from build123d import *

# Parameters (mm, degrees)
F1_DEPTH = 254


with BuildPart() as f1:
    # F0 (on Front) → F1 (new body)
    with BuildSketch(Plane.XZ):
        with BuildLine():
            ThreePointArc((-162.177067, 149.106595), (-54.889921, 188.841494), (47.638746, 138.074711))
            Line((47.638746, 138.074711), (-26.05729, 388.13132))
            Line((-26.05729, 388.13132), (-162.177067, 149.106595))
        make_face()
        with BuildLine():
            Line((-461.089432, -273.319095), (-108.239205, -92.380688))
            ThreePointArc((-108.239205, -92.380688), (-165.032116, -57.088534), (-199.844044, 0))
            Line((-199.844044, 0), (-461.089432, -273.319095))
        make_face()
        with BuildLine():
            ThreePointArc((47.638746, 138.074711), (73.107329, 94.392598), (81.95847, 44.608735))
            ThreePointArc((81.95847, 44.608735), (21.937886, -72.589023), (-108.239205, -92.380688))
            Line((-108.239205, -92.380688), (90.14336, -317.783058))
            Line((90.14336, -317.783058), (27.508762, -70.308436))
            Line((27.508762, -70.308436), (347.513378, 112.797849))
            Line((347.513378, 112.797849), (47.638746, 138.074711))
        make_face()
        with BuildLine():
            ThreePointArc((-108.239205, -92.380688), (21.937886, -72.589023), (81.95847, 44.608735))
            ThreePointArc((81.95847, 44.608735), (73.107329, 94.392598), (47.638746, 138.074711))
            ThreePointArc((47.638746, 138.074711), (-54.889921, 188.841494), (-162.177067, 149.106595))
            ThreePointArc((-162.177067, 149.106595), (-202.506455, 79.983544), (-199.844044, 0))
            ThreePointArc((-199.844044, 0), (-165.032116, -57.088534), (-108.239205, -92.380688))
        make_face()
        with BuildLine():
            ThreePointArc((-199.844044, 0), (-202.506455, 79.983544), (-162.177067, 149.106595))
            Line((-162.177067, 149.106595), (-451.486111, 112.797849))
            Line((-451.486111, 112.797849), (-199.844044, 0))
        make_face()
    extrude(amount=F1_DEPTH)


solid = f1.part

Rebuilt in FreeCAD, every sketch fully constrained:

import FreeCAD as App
import Part
import Sketcher
Q = App.Units.Quantity

doc = App.newDocument("Part")
body = doc.addObject("PartDesign::Body", "Body")

# Sketch on XZ plane
sketch1 = body.newObject("Sketcher::SketchObject", "Sketch")
sketch1.AttachmentSupport = (doc.getObject("XZ_Plane"), [""])
sketch1.MapMode = "FlatFace"
sketch1.addGeometry(Part.LineSegment(App.Vector(48, 138, 0), App.Vector(-26, 388, 0)), False)
sketch1.addGeometry(Part.LineSegment(App.Vector(-26, 388, 0), App.Vector(-162, 149, 0)), False)
sketch1.addGeometry(Part.LineSegment(App.Vector(-162, 149, 0), App.Vector(-451, 113, 0)), False)
sketch1.addGeometry(Part.LineSegment(App.Vector(-451, 113, 0), App.Vector(-200, 0, 0)), False)
sketch1.addGeometry(Part.LineSegment(App.Vector(-200, 0, 0), App.Vector(-461, -273, 0)), False)
sketch1.addGeometry(Part.LineSegment(App.Vector(-461, -273, 0), App.Vector(-108, -92, 0)), False)
sketch1.addGeometry(Part.LineSegment(App.Vector(-108, -92, 0), App.Vector(90, -318, 0)), False)
sketch1.addGeometry(Part.LineSegment(App.Vector(90, -318, 0), App.Vector(28, -70, 0)), False)
sketch1.addGeometry(Part.LineSegment(App.Vector(28, -70, 0), App.Vector(348, 113, 0)), False)
sketch1.addGeometry(Part.LineSegment(App.Vector(348, 113, 0), App.Vector(48, 138, 0)), False)
sketch1.addConstraint(Sketcher.Constraint("Coincident", 0, 2, 1, 1))
sketch1.addConstraint(Sketcher.Constraint("Coincident", 1, 2, 2, 1))
sketch1.addConstraint(Sketcher.Constraint("Coincident", 2, 2, 3, 1))
sketch1.addConstraint(Sketcher.Constraint("Coincident", 3, 2, 4, 1))
sketch1.addConstraint(Sketcher.Constraint("Coincident", 4, 2, 5, 1))
sketch1.addConstraint(Sketcher.Constraint("Coincident", 5, 2, 6, 1))
sketch1.addConstraint(Sketcher.Constraint("Coincident", 6, 2, 7, 1))
sketch1.addConstraint(Sketcher.Constraint("Coincident", 7, 2, 8, 1))
sketch1.addConstraint(Sketcher.Constraint("Coincident", 8, 2, 9, 1))
sketch1.addConstraint(Sketcher.Constraint("Coincident", 9, 2, 0, 1))
sketch1.addConstraint(Sketcher.Constraint("PointOnObject", 3, 2, -1))
sketch1.addConstraint(Sketcher.Constraint("Horizontal", 2, 2, 8, 2))
sketch1.addConstraint(Sketcher.Constraint("Distance", 5, Q("396.537501 mm")))
sketch1.addConstraint(Sketcher.Constraint("DistanceY", 5, 2, 9, 2, Q("230.455399 mm")))
sketch1.addConstraint(Sketcher.Constraint("Distance", 3, Q("275.766359 mm")))
sketch1.addConstraint(Sketcher.Constraint("Distance", 4, Q("378.090572 mm")))
sketch1.addConstraint(Sketcher.Constraint("Distance", 7, Q("255.277851 mm")))
sketch1.addConstraint(Sketcher.Constraint("DistanceX", 0, 2, -1, 1, Q("26.05729 mm")))
sketch1.addConstraint(Sketcher.Constraint("DistanceY", -1, 1, 0, 2, Q("388.13132 mm")))
sketch1.addConstraint(Sketcher.Constraint("DistanceX", 2, 2, -1, 1, Q("451.486111 mm")))
sketch1.addConstraint(Sketcher.Constraint("DistanceY", -1, 1, 2, 2, Q("112.797849 mm")))
sketch1.addConstraint(Sketcher.Constraint("DistanceX", 4, 2, -1, 1, Q("461.089432 mm")))
sketch1.addConstraint(Sketcher.Constraint("DistanceY", 5, 2, -1, 1, Q("92.380688 mm")))
sketch1.addConstraint(Sketcher.Constraint("DistanceX", -1, 1, 6, 2, Q("90.14336 mm")))
sketch1.addConstraint(Sketcher.Constraint("DistanceY", 6, 2, -1, 1, Q("317.783058 mm")))
sketch1.addConstraint(Sketcher.Constraint("DistanceX", -1, 1, 8, 2, Q("347.513378 mm")))
sketch1.addConstraint(Sketcher.Constraint("DistanceY", 4, 2, 1, 2, Q("422.42569 mm")))
sketch1.addConstraint(Sketcher.Constraint("DistanceX", 1, 2, 5, 2, Q("53.937862 mm")))
sketch1.addConstraint(Sketcher.Constraint("DistanceY", 6, 2, 7, 2, Q("247.474622 mm")))
sketch1.addConstraint(Sketcher.Constraint("DistanceX", 5, 2, 9, 2, Q("155.877951 mm")))
pad1 = body.newObject("PartDesign::Pad", "Pad")
pad1.Profile = sketch1
pad1.Length = Q("10 in")

doc.recompute()
